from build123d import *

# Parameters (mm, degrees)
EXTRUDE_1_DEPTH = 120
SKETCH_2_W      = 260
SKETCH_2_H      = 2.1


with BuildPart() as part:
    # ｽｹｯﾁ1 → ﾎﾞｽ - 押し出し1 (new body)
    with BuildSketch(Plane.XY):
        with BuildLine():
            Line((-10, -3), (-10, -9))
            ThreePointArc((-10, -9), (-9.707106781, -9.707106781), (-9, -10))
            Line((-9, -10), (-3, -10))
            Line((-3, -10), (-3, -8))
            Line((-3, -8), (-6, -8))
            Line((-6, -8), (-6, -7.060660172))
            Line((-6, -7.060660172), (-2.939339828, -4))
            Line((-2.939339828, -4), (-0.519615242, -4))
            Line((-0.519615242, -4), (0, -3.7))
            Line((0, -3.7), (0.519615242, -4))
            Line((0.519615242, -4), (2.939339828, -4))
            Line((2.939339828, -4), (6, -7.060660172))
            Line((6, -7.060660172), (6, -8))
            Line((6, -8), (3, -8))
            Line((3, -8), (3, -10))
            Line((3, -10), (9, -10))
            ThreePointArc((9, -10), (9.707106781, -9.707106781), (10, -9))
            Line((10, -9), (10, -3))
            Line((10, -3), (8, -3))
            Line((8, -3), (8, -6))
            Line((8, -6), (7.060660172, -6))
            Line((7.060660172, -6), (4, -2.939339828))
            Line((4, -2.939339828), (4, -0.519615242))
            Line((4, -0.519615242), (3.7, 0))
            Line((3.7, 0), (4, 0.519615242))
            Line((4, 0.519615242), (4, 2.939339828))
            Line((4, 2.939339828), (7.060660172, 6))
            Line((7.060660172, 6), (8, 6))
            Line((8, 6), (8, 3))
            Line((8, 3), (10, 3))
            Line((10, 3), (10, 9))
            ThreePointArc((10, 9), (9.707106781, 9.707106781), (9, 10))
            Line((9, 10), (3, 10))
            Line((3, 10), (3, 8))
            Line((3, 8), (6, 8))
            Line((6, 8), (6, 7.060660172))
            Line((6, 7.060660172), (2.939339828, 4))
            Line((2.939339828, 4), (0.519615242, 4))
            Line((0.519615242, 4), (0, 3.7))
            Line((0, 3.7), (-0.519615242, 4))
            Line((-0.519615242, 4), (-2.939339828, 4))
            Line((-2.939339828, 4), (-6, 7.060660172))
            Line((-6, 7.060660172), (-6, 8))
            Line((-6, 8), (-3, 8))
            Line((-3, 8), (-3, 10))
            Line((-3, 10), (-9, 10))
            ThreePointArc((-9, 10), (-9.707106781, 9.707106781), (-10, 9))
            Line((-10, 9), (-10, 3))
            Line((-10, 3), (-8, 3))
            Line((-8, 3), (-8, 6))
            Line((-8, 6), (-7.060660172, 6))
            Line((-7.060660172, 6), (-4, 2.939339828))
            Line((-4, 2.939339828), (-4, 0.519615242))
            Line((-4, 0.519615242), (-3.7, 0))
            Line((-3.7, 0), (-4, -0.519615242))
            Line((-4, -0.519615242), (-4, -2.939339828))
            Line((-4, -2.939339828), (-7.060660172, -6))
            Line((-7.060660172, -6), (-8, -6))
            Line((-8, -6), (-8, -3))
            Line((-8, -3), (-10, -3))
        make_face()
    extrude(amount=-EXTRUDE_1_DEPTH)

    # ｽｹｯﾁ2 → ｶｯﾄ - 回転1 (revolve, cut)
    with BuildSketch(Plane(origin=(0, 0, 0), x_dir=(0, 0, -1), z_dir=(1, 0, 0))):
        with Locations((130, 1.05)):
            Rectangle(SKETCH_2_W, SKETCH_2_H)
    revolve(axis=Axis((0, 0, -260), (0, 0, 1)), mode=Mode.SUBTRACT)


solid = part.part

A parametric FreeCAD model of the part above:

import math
import FreeCAD as App
import Part
import Sketcher
Q = App.Units.Quantity


def add_polygon(sketch, points):
    """Adds a closed chain of lines whose ends are joined by coincident constraints."""
    first, n = sketch.GeometryCount, len(points)
    for a, b in zip(points, points[1:] + points[:1]):
        sketch.addGeometry(Part.LineSegment(App.Vector(*a, 0), App.Vector(*b, 0)), False)
    for i in range(n):
        sketch.addConstraint(Sketcher.Constraint("Coincident", first + i, 2, first + (i + 1) % n, 1))

doc = App.newDocument("Part")
params = doc.addObject("Spreadsheet::Sheet", "Params")
for row, (alias, value) in enumerate([
    ("sketch1_radius", "1 mm"),
    ("sketch1_width", "6 mm"),
    ("sketch1_width2", "3 mm"),
    ("sketch1_width3", "2 mm"),
    ("sketch1_length", "0.6 mm"),
    ("pad1_length", "120 mm"),
    ("sketch2_height", "260 mm"),
    ("sketch2_width", "2.1 mm"),
    ("groove_angle", "360 deg"),
], start=1):
    params.set(f"A{row}", alias)
    params.set(f"B{row}", "=" + value)
    params.setAlias(f"B{row}", alias)

body = doc.addObject("PartDesign::Body", "Body")

# Sketch on XY plane
sketch1 = body.newObject("Sketcher::SketchObject", "Sketch")
sketch1.AttachmentSupport = (doc.getObject("XY_Plane"), [""])
sketch1.MapMode = "FlatFace"
sketch1.addGeometry([
    Part.LineSegment(App.Vector(-10, -3, 0), App.Vector(-10, -9, 0)),  # 0
    Part.ArcOfCircle(Part.Circle(App.Vector(-9, -9, 0), App.Vector(0, 0, 1), 1), math.radians(-180), math.radians(-90)),  # 1
    Part.LineSegment(App.Vector(-9, -10, 0), App.Vector(-3, -10, 0)),  # 2
    Part.LineSegment(App.Vector(-3, -10, 0), App.Vector(-3, -8, 0)),  # 3
    Part.LineSegment(App.Vector(-3, -8, 0), App.Vector(-6, -8, 0)),  # 4
    Part.LineSegment(App.Vector(-6, -8, 0), App.Vector(-6, -7.06066, 0)),  # 5
    Part.LineSegment(App.Vector(-6, -7.06066, 0), App.Vector(-2.93934, -4, 0)),  # 6
    Part.LineSegment(App.Vector(-2.93934, -4, 0), App.Vector(-0.519615, -4, 0)),  # 7
    Part.LineSegment(App.Vector(-0.519615, -4, 0), App.Vector(0, -3.7, 0)),  # 8
    Part.LineSegment(App.Vector(0, -3.7, 0), App.Vector(0.519615, -4, 0)),  # 9
    Part.LineSegment(App.Vector(0.519615, -4, 0), App.Vector(2.93934, -4, 0)),  # 10
    Part.LineSegment(App.Vector(2.93934, -4, 0), App.Vector(6, -7.06066, 0)),  # 11
    Part.LineSegment(App.Vector(6, -7.06066, 0), App.Vector(6, -8, 0)),  # 12
    Part.LineSegment(App.Vector(6, -8, 0), App.Vector(3, -8, 0)),  # 13
    Part.LineSegment(App.Vector(3, -8, 0), App.Vector(3, -10, 0)),  # 14
    Part.LineSegment(App.Vector(3, -10, 0), App.Vector(9, -10, 0)),  # 15
    Part.ArcOfCircle(Part.Circle(App.Vector(9, -9, 0), App.Vector(0, 0, 1), 1), math.radians(-90), math.radians(0)),  # 16
    Part.LineSegment(App.Vector(10, -9, 0), App.Vector(10, -3, 0)),  # 17
    Part.LineSegment(App.Vector(10, -3, 0), App.Vector(8, -3, 0)),  # 18
    Part.LineSegment(App.Vector(8, -3, 0), App.Vector(8, -6, 0)),  # 19
    Part.LineSegment(App.Vector(8, -6, 0), App.Vector(7.06066, -6, 0)),  # 20
    Part.LineSegment(App.Vector(7.06066, -6, 0), App.Vector(4, -2.93934, 0)),  # 21
    Part.LineSegment(App.Vector(4, -2.93934, 0), App.Vector(4, -0.519615, 0)),  # 22
    Part.LineSegment(App.Vector(4, -0.519615, 0), App.Vector(3.7, 0, 0)),  # 23
    Part.LineSegment(App.Vector(3.7, 0, 0), App.Vector(4, 0.519615, 0)),  # 24
    Part.LineSegment(App.Vector(4, 0.519615, 0), App.Vector(4, 2.93934, 0)),  # 25
    Part.LineSegment(App.Vector(4, 2.93934, 0), App.Vector(7.06066, 6, 0)),  # 26
    Part.LineSegment(App.Vector(7.06066, 6, 0), App.Vector(8, 6, 0)),  # 27
    Part.LineSegment(App.Vector(8, 6, 0), App.Vector(8, 3, 0)),  # 28
    Part.LineSegment(App.Vector(8, 3, 0), App.Vector(10, 3, 0)),  # 29
    Part.LineSegment(App.Vector(10, 3, 0), App.Vector(10, 9, 0)),  # 30
    Part.ArcOfCircle(Part.Circle(App.Vector(9, 9, 0), App.Vector(0, 0, 1), 1), math.radians(0), math.radians(90)),  # 31
    Part.LineSegment(App.Vector(9, 10, 0), App.Vector(3, 10, 0)),  # 32
    Part.LineSegment(App.Vector(3, 10, 0), App.Vector(3, 8, 0)),  # 33
    Part.LineSegment(App.Vector(3, 8, 0), App.Vector(6, 8, 0)),  # 34
    Part.LineSegment(App.Vector(6, 8, 0), App.Vector(6, 7.06066, 0)),  # 35
    Part.LineSegment(App.Vector(6, 7.06066, 0), App.Vector(2.93934, 4, 0)),  # 36
    Part.LineSegment(App.Vector(2.93934, 4, 0), App.Vector(0.519615, 4, 0)),  # 37
    Part.LineSegment(App.Vector(0.519615, 4, 0), App.Vector(0, 3.7, 0)),  # 38
    Part.LineSegment(App.Vector(0, 3.7, 0), App.Vector(-0.519615, 4, 0)),  # 39
    Part.LineSegment(App.Vector(-0.519615, 4, 0), App.Vector(-2.93934, 4, 0)),  # 40
    Part.LineSegment(App.Vector(-2.93934, 4, 0), App.Vector(-6, 7.06066, 0)),  # 41
    Part.LineSegment(App.Vector(-6, 7.06066, 0), App.Vector(-6, 8, 0)),  # 42
    Part.LineSegment(App.Vector(-6, 8, 0), App.Vector(-3, 8, 0)),  # 43
    Part.LineSegment(App.Vector(-3, 8, 0), App.Vector(-3, 10, 0)),  # 44
    Part.LineSegment(App.Vector(-3, 10, 0), App.Vector(-9, 10, 0)),  # 45
    Part.ArcOfCircle(Part.Circle(App.Vector(-9, 9, 0), App.Vector(0, 0, 1), 1), math.radians(90), math.radians(180)),  # 46
    Part.LineSegment(App.Vector(-10, 9, 0), App.Vector(-10, 3, 0)),  # 47
    Part.LineSegment(App.Vector(-10, 3, 0), App.Vector(-8, 3, 0)),  # 48
    Part.LineSegment(App.Vector(-8, 3, 0), App.Vector(-8, 6, 0)),  # 49
    Part.LineSegment(App.Vector(-8, 6, 0), App.Vector(-7.06066, 6, 0)),  # 50
    Part.LineSegment(App.Vector(-7.06066, 6, 0), App.Vector(-4, 2.93934, 0)),  # 51
    Part.LineSegment(App.Vector(-4, 2.93934, 0), App.Vector(-4, 0.519615, 0)),  # 52
    Part.LineSegment(App.Vector(-4, 0.519615, 0), App.Vector(-3.7, 0, 0)),  # 53
    Part.LineSegment(App.Vector(-3.7, 0, 0), App.Vector(-4, -0.519615, 0)),  # 54
    Part.LineSegment(App.Vector(-4, -0.519615, 0), App.Vector(-4, -2.93934, 0)),  # 55
    Part.LineSegment(App.Vector(-4, -2.93934, 0), App.Vector(-7.06066, -6, 0)),  # 56
    Part.LineSegment(App.Vector(-7.06066, -6, 0), App.Vector(-8, -6, 0)),  # 57
    Part.LineSegment(App.Vector(-8, -6, 0), App.Vector(-8, -3, 0)),  # 58
    Part.LineSegment(App.Vector(-8, -3, 0), App.Vector(-10, -3, 0)),  # 59
], False)
sketch1.addConstraint([
    Sketcher.Constraint("Tangent", 0, 2, 1, 1),
    Sketcher.Constraint("Tangent", 1, 2, 2, 1),
    Sketcher.Constraint("Coincident", 2, 2, 3, 1),
    Sketcher.Constraint("Coincident", 3, 2, 4, 1),
    Sketcher.Constraint("Coincident", 4, 2, 5, 1),
    Sketcher.Constraint("Coincident", 5, 2, 6, 1),
    Sketcher.Constraint("Coincident", 6, 2, 7, 1),
    Sketcher.Constraint("Coincident", 7, 2, 8, 1),
    Sketcher.Constraint("Coincident", 8, 2, 9, 1),
    Sketcher.Constraint("Coincident", 9, 2, 10, 1),
    Sketcher.Constraint("Coincident", 10, 2, 11, 1),
    Sketcher.Constraint("Coincident", 11, 2, 12, 1),
    Sketcher.Constraint("Coincident", 12, 2, 13, 1),
    Sketcher.Constraint("Coincident", 13, 2, 14, 1),
    Sketcher.Constraint("Coincident", 14, 2, 15, 1),
    Sketcher.Constraint("Tangent", 15, 2, 16, 1),
    Sketcher.Constraint("Tangent", 16, 2, 17, 1),
    Sketcher.Constraint("Coincident", 17, 2, 18, 1),
    Sketcher.Constraint("Coincident", 18, 2, 19, 1),
    Sketcher.Constraint("Coincident", 19, 2, 20, 1),
    Sketcher.Constraint("Coincident", 20, 2, 21, 1),
    Sketcher.Constraint("Coincident", 21, 2, 22, 1),
    Sketcher.Constraint("Coincident", 22, 2, 23, 1),
    Sketcher.Constraint("Coincident", 23, 2, 24, 1),
    Sketcher.Constraint("Coincident", 24, 2, 25, 1),
    Sketcher.Constraint("Coincident", 25, 2, 26, 1),
    Sketcher.Constraint("Coincident", 26, 2, 27, 1),
    Sketcher.Constraint("Coincident", 27, 2, 28, 1),
    Sketcher.Constraint("Coincident", 28, 2, 29, 1),
    Sketcher.Constraint("Coincident", 29, 2, 30, 1),
    Sketcher.Constraint("Tangent", 30, 2, 31, 1),
    Sketcher.Constraint("Tangent", 31, 2, 32, 1),
    Sketcher.Constraint("Coincident", 32, 2, 33, 1),
    Sketcher.Constraint("Coincident", 33, 2, 34, 1),
    Sketcher.Constraint("Coincident", 34, 2, 35, 1),
    Sketcher.Constraint("Coincident", 35, 2, 36, 1),
    Sketcher.Constraint("Coincident", 36, 2, 37, 1),
    Sketcher.Constraint("Coincident", 37, 2, 38, 1),
    Sketcher.Constraint("Coincident", 38, 2, 39, 1),
    Sketcher.Constraint("Coincident", 39, 2, 40, 1),
    Sketcher.Constraint("Coincident", 40, 2, 41, 1),
    Sketcher.Constraint("Coincident", 41, 2, 42, 1),
    Sketcher.Constraint("Coincident", 42, 2, 43, 1),
    Sketcher.Constraint("Coincident", 43, 2, 44, 1),
    Sketcher.Constraint("Coincident", 44, 2, 45, 1),
    Sketcher.Constraint("Tangent", 45, 2, 46, 1),
    Sketcher.Constraint("Tangent", 46, 2, 47, 1),
    Sketcher.Constraint("Coincident", 47, 2, 48, 1),
    Sketcher.Constraint("Coincident", 48, 2, 49, 1),
    Sketcher.Constraint("Coincident", 49, 2, 50, 1),
    Sketcher.Constraint("Coincident", 50, 2, 51, 1),
    Sketcher.Constraint("Coincident", 51, 2, 52, 1),
    Sketcher.Constraint("Coincident", 52, 2, 53, 1),
    Sketcher.Constraint("Coincident", 53, 2, 54, 1),
    Sketcher.Constraint("Coincident", 54, 2, 55, 1),
    Sketcher.Constraint("Coincident", 55, 2, 56, 1),
    Sketcher.Constraint("Coincident", 56, 2, 57, 1),
    Sketcher.Constraint("Coincident", 57, 2, 58, 1),
    Sketcher.Constraint("Coincident", 58, 2, 59, 1),
    Sketcher.Constraint("Coincident", 59, 2, 0, 1),
    Sketcher.Constraint("Vertical", 0),
    Sketcher.Constraint("Horizontal", 2),
    Sketcher.Constraint("Vertical", 3),
    Sketcher.Constraint("Horizontal", 4),
    Sketcher.Constraint("Vertical", 5),
    Sketcher.Constraint("Horizontal", 7),
    Sketcher.Constraint("Horizontal", 10),
    Sketcher.Constraint("Vertical", 12),
    Sketcher.Constraint("Horizontal", 13),
    Sketcher.Constraint("Vertical", 14),
    Sketcher.Constraint("Horizontal", 15),
    Sketcher.Constraint("Vertical", 17),
    Sketcher.Constraint("Horizontal", 18),
    Sketcher.Constraint("Vertical", 19),
    Sketcher.Constraint("Horizontal", 20),
    Sketcher.Constraint("Vertical", 22),
    Sketcher.Constraint("Vertical", 25),
    Sketcher.Constraint("Horizontal", 27),
    Sketcher.Constraint("Vertical", 28),
    Sketcher.Constraint("Horizontal", 29),
    Sketcher.Constraint("Vertical", 30),
    Sketcher.Constraint("Horizontal", 32),
    Sketcher.Constraint("Vertical", 33),
    Sketcher.Constraint("Horizontal", 34),
    Sketcher.Constraint("Vertical", 35),
    Sketcher.Constraint("Horizontal", 37),
    Sketcher.Constraint("Horizontal", 40),
    Sketcher.Constraint("Vertical", 42),
    Sketcher.Constraint("Horizontal", 43),
    Sketcher.Constraint("Vertical", 44),
    Sketcher.Constraint("Horizontal", 45),
    Sketcher.Constraint("Vertical", 47),
    Sketcher.Constraint("Horizontal", 48),
    Sketcher.Constraint("Vertical", 49),
    Sketcher.Constraint("Horizontal", 50),
    Sketcher.Constraint("Vertical", 52),
    Sketcher.Constraint("Vertical", 55),
    Sketcher.Constraint("Horizontal", 57),
    Sketcher.Constraint("Vertical", 58),
    Sketcher.Constraint("Horizontal", 59),
    Sketcher.Constraint("Equal", 1, 16),
    Sketcher.Constraint("Equal", 16, 31),
    Sketcher.Constraint("Equal", 31, 46),
    Sketcher.Constraint("Symmetric", 1, 3, 31, 3, -1, 1),
    Sketcher.Constraint("Symmetric", 16, 3, 46, 3, -1, 1),
    Sketcher.Constraint("Symmetric", 3, 2, 33, 2, -1, 1),
    Sketcher.Constraint("Symmetric", 5, 2, 35, 2, -1, 1),
    Sketcher.Constraint("Symmetric", 6, 2, 36, 2, -1, 1),
    Sketcher.Constraint("Symmetric", 8, 2, 38, 2, -1, 1),
    Sketcher.Constraint("Symmetric", 9, 2, 39, 2, -1, 1),
    Sketcher.Constraint("Symmetric", 11, 2, 41, 2, -1, 1),
    Sketcher.Constraint("Symmetric", 13, 2, 43, 2, -1, 1),
    Sketcher.Constraint("Symmetric", 18, 2, 48, 2, -1, 1),
    Sketcher.Constraint("Symmetric", 20, 2, 50, 2, -1, 1),
    Sketcher.Constraint("Symmetric", 21, 2, 51, 2, -1, 1),
    Sketcher.Constraint("Symmetric", 23, 2, 53, 2, -1, 1),
    Sketcher.Constraint("Symmetric", 24, 2, 54, 2, -1, 1),
    Sketcher.Constraint("Symmetric", 26, 2, 56, 2, -1, 1),
    Sketcher.Constraint("Symmetric", 28, 2, 58, 2, -1, 1),
    Sketcher.Constraint("Symmetric", 1, 3, 16, 3, -2),
    Sketcher.Constraint("Symmetric", 7, 2, 9, 2, -2),
    Sketcher.Constraint("Symmetric", 5, 2, 11, 2, -2),
    Sketcher.Constraint("Symmetric", 3, 2, 13, 2, -2),
    Sketcher.Constraint("Symmetric", 28, 2, 48, 2, -2),
    Sketcher.Constraint("Symmetric", 26, 2, 50, 2, -2),
    Sketcher.Constraint("Symmetric", 25, 2, 51, 2, -2),
    Sketcher.Constraint("PointOnObject", 8, 2, -2),
    Sketcher.Constraint("PointOnObject", 23, 2, -1),
    Sketcher.Constraint("Perpendicular", 6, 11),
    Sketcher.Constraint("Parallel", 11, 21),
    Sketcher.Constraint("Perpendicular", 8, 23),
    Sketcher.Constraint("Perpendicular", 9, 24),
    Sketcher.Constraint("Perpendicular", 21, 26),
    Sketcher.Constraint("Perpendicular", 23, 38),
    Sketcher.Constraint("Perpendicular", 36, 41),
    Sketcher.Constraint("Perpendicular", 38, 53),
    Sketcher.Constraint("Perpendicular", 51, 56),
    Sketcher.Constraint("Equal", 45, 0),
    Sketcher.Constraint("Equal", 59, 3),
    Sketcher.Constraint("Equal", 57, 5),
    Sketcher.Constraint("Equal", 43, 19),
    Sketcher.Constraint("Equal", 40, 22),
    Sketcher.Constraint("Equal", 11, 21),
    Sketcher.Constraint("Equal", 9, 23),
    Sketcher.Constraint("Radius", 1, 1.0),
    Sketcher.Constraint("DistanceX", 2, 1, 2, 2, 6.0),
    Sketcher.Constraint("DistanceX", 4, 2, 4, 1, 3.0),
    Sketcher.Constraint("DistanceX", 18, 2, 18, 1, 2.0),
    Sketcher.Constraint("Angle", 8, Q("30 deg")),
    Sketcher.Constraint("DistanceX", 1, 3, -1, 1, 9.0),
    Sketcher.Constraint("DistanceY", 6, 2, -1, 1, 4.0),
    Sketcher.Constraint("Distance", 8, 0.6),
    Sketcher.Constraint("DistanceX", 20, 2, 20, 1, 0.93934),
])
sketch1.setExpression("Constraints[144]", "Params.sketch1_radius")
sketch1.setExpression("Constraints[145]", "Params.sketch1_width")
sketch1.setExpression("Constraints[146]", "Params.sketch1_width2")
sketch1.setExpression("Constraints[147]", "Params.sketch1_width3")
sketch1.setExpression("Constraints[151]", "Params.sketch1_length")
pad1 = body.newObject("PartDesign::Pad", "Pad")
pad1.Profile = sketch1
pad1.setExpression("Length", "Params.pad1_length")
pad1.Reversed = True

# Sketch on YZ plane
sketch2 = body.newObject("Sketcher::SketchObject", "Sketch001")
sketch2.AttachmentSupport = (doc.getObject("YZ_Plane"), [""])
sketch2.MapMode = "FlatFace"
add_polygon(sketch2, [(2.1, 0), (0, 0), (0, -260), (2.1, -260)])  # lines 0-3
sketch2.addConstraint([
    Sketcher.Constraint("Horizontal", 0),
    Sketcher.Constraint("Vertical", 1),
    Sketcher.Constraint("Horizontal", 2),
    Sketcher.Constraint("Vertical", 3),
    Sketcher.Constraint("Coincident", 0, 2, -1, 1),
    Sketcher.Constraint("DistanceY", 1, 2, 1, 1, 260.0),
    Sketcher.Constraint("DistanceX", 0, 2, 0, 1, 2.1),
])
sketch2.setExpression("Constraints[9]", "Params.sketch2_height")
sketch2.setExpression("Constraints[10]", "Params.sketch2_width")
groove = body.newObject("PartDesign::Groove", "Groove")
groove.Profile = sketch2
groove.ReferenceAxis = (sketch2, ["V_Axis"])
groove.setExpression("Angle", "Params.groove_angle")

doc.recompute()
